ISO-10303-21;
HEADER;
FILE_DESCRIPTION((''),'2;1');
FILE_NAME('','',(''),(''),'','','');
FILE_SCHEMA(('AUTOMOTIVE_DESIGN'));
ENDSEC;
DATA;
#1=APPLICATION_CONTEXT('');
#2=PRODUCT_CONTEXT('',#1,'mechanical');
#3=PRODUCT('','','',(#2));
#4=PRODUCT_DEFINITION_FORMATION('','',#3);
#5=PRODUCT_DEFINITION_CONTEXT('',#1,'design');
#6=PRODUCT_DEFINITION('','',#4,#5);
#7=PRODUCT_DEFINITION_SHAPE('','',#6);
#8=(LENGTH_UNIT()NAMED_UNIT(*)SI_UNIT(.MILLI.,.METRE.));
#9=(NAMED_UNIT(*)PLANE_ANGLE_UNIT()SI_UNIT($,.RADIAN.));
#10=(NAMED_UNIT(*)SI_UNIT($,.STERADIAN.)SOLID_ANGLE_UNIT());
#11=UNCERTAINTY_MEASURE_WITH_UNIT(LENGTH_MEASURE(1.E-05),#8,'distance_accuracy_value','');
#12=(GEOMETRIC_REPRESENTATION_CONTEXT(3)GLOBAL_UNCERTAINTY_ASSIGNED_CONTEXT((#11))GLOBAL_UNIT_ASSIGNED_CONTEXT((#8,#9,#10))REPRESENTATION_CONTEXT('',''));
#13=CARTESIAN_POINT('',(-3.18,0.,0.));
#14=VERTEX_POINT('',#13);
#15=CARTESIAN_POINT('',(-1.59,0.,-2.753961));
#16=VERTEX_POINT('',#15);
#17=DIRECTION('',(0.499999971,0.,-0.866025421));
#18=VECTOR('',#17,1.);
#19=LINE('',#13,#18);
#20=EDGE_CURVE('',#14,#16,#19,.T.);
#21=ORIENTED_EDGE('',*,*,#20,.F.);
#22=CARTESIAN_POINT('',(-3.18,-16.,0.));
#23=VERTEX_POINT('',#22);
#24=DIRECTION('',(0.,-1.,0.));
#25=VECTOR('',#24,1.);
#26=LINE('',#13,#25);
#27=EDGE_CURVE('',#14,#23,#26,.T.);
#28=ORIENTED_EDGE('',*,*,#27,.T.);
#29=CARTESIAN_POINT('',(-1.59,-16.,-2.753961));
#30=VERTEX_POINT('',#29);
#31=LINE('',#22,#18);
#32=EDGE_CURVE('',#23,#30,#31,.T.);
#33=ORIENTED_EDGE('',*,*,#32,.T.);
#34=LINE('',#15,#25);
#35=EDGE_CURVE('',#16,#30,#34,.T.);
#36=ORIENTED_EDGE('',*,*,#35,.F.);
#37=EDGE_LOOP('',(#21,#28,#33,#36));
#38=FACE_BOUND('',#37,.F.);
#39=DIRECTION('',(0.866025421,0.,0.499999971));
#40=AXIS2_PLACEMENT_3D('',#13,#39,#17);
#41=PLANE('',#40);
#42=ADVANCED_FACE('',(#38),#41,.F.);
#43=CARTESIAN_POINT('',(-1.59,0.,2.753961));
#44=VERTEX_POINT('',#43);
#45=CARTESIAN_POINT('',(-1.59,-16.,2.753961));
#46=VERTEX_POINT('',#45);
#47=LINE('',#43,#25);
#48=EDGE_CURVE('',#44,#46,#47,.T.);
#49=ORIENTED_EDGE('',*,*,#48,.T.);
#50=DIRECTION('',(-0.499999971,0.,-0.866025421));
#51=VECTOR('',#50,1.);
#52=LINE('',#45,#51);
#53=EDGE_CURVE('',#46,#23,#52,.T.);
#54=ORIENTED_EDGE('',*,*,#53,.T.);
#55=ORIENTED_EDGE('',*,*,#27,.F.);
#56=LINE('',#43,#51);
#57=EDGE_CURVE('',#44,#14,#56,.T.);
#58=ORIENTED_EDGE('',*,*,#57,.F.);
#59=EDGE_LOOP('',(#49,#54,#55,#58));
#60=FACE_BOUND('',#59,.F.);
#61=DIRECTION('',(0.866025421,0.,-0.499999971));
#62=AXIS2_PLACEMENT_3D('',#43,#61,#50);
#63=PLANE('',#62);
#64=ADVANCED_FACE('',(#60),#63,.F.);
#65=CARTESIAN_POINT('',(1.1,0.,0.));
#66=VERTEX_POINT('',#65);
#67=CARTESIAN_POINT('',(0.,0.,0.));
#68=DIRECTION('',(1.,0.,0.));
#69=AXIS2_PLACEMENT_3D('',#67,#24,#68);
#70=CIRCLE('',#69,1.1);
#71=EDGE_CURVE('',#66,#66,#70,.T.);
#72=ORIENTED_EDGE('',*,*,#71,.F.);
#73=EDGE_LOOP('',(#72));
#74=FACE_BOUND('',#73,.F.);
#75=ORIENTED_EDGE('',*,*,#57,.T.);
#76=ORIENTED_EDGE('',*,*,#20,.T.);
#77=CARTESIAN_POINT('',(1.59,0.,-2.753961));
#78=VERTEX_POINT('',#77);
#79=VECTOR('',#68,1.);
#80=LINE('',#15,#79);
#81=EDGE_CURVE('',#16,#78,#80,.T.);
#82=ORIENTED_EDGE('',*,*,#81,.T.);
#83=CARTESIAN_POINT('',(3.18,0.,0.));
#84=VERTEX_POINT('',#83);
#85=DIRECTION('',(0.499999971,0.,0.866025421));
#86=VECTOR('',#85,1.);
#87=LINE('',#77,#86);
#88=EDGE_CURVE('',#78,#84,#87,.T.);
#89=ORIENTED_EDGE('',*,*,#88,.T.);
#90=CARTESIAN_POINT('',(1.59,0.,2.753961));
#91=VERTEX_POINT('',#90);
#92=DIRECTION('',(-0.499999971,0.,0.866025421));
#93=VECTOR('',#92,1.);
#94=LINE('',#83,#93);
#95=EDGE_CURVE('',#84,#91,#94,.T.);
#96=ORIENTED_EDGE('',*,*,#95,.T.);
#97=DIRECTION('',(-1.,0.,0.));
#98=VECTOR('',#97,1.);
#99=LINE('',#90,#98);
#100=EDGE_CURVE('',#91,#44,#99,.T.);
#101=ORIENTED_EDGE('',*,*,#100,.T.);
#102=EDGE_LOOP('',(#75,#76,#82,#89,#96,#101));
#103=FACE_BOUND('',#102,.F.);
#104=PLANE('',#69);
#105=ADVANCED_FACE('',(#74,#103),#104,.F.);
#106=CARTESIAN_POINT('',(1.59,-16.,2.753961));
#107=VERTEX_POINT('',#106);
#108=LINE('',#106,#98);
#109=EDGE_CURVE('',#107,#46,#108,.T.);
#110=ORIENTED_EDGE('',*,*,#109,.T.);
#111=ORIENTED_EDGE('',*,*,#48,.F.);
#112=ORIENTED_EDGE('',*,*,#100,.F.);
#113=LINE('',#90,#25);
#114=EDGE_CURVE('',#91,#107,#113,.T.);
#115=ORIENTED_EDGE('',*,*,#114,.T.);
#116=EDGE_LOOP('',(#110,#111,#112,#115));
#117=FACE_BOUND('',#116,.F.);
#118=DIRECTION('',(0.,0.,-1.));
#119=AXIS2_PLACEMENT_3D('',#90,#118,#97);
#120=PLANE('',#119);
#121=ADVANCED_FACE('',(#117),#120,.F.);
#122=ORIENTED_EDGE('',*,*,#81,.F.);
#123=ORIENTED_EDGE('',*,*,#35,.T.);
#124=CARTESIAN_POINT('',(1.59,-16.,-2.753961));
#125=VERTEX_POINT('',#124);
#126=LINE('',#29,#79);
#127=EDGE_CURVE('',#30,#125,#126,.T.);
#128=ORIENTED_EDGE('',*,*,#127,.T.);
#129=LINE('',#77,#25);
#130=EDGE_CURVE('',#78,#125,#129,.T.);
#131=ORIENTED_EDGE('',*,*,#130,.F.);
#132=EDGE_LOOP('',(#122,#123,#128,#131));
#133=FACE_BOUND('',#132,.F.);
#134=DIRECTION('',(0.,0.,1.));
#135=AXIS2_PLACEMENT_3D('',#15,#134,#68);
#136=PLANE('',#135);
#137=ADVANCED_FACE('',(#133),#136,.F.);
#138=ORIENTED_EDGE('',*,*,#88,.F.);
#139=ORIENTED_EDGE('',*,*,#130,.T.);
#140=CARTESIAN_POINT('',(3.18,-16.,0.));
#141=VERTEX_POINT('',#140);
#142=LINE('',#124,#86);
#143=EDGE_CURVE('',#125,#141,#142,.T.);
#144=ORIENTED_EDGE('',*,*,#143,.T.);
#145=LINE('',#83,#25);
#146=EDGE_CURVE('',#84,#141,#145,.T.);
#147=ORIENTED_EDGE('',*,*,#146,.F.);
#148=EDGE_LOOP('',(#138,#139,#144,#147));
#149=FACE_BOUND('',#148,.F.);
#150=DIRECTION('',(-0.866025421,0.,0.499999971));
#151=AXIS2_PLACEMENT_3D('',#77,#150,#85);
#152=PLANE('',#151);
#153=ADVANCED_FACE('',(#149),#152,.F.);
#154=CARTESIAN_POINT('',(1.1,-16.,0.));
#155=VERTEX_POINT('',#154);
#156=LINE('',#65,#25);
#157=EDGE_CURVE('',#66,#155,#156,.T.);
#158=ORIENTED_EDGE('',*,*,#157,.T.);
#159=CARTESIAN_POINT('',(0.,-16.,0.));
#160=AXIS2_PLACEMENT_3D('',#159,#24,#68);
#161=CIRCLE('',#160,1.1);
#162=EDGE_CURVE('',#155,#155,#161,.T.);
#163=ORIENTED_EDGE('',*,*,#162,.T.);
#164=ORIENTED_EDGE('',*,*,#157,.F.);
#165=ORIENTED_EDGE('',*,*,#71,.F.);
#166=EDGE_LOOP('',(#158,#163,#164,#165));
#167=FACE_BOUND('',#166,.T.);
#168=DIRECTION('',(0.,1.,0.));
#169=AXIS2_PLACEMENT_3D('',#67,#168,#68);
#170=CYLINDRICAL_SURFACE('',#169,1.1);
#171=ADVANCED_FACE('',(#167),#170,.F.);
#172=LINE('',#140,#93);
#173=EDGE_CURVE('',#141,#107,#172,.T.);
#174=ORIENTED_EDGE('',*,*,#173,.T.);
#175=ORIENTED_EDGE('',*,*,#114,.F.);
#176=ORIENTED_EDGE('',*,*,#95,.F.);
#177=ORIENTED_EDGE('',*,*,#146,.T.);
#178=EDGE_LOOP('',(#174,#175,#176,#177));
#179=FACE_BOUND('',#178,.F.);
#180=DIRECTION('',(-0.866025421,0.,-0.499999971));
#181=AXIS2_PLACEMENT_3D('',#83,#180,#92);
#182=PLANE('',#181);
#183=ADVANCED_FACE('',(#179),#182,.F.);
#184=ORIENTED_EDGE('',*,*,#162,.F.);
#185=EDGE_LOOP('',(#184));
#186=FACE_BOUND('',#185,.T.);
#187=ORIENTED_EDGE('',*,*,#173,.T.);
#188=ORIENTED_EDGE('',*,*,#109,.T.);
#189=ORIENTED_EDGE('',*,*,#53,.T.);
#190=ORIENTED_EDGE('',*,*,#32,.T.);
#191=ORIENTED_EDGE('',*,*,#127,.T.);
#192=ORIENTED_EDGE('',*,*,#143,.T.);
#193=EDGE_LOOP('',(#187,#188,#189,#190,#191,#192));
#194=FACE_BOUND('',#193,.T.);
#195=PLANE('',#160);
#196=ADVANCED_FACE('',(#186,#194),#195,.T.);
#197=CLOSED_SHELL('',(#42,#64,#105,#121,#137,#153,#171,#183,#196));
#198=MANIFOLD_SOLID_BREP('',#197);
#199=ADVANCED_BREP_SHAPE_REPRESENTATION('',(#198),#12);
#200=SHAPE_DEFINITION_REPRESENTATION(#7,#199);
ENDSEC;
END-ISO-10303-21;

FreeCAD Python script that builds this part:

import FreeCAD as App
import Part
import Sketcher
Q = App.Units.Quantity


def add_polygon(sketch, points):
    """Adds a closed chain of lines whose ends are joined by coincident constraints."""
    first, n = sketch.GeometryCount, len(points)
    for a, b in zip(points, points[1:] + points[:1]):
        sketch.addGeometry(Part.LineSegment(App.Vector(*a, 0), App.Vector(*b, 0)), False)
    for i in range(n):
        sketch.addConstraint(Sketcher.Constraint("Coincident", first + i, 2, first + (i + 1) % n, 1))

doc = App.newDocument("Part")
body = doc.addObject("PartDesign::Body", "Body")

# Sketch on XZ plane
sketch1 = body.newObject("Sketcher::SketchObject", "Sketch")
sketch1.AttachmentSupport = (doc.getObject("XZ_Plane"), [""])
sketch1.MapMode = "FlatFace"
add_polygon(sketch1, [(-1.6, -2.8), (1.6, -2.8), (3.2, 0), (1.6, 2.8), (-1.6, 2.8), (-3.2, 0)])  # lines 0-5
sketch1.addGeometry(Part.Circle(App.Vector(0, 0, 0), App.Vector(0, 0, 1), 1.1), False)  # 6
sketch1.addConstraint([
    Sketcher.Constraint("Horizontal", 0),
    Sketcher.Constraint("Horizontal", 3),
    Sketcher.Constraint("Coincident", 6, 3, -1, 1),
    Sketcher.Constraint("Symmetric", 0, 2, 3, 2, -1, 1),
    Sketcher.Constraint("Symmetric", 1, 2, 4, 2, -1, 1),
    Sketcher.Constraint("PointOnObject", 1, 2, -1),
    Sketcher.Constraint("Parallel", 2, 5),
    Sketcher.Constraint("Vertical", 0, 2, 2, 2),
    Sketcher.Constraint("Diameter", 6, 2.2),
    Sketcher.Constraint("Angle", 1, Q("60.000002 deg")),
    Sketcher.Constraint("DistanceX", 0, 1, 0, 2, 3.18),
    Sketcher.Constraint("Distance", 1, 3.18),
])
pad1 = body.newObject("PartDesign::Pad", "Pad")
pad1.Profile = sketch1
pad1.Length = 16

doc.recompute()
